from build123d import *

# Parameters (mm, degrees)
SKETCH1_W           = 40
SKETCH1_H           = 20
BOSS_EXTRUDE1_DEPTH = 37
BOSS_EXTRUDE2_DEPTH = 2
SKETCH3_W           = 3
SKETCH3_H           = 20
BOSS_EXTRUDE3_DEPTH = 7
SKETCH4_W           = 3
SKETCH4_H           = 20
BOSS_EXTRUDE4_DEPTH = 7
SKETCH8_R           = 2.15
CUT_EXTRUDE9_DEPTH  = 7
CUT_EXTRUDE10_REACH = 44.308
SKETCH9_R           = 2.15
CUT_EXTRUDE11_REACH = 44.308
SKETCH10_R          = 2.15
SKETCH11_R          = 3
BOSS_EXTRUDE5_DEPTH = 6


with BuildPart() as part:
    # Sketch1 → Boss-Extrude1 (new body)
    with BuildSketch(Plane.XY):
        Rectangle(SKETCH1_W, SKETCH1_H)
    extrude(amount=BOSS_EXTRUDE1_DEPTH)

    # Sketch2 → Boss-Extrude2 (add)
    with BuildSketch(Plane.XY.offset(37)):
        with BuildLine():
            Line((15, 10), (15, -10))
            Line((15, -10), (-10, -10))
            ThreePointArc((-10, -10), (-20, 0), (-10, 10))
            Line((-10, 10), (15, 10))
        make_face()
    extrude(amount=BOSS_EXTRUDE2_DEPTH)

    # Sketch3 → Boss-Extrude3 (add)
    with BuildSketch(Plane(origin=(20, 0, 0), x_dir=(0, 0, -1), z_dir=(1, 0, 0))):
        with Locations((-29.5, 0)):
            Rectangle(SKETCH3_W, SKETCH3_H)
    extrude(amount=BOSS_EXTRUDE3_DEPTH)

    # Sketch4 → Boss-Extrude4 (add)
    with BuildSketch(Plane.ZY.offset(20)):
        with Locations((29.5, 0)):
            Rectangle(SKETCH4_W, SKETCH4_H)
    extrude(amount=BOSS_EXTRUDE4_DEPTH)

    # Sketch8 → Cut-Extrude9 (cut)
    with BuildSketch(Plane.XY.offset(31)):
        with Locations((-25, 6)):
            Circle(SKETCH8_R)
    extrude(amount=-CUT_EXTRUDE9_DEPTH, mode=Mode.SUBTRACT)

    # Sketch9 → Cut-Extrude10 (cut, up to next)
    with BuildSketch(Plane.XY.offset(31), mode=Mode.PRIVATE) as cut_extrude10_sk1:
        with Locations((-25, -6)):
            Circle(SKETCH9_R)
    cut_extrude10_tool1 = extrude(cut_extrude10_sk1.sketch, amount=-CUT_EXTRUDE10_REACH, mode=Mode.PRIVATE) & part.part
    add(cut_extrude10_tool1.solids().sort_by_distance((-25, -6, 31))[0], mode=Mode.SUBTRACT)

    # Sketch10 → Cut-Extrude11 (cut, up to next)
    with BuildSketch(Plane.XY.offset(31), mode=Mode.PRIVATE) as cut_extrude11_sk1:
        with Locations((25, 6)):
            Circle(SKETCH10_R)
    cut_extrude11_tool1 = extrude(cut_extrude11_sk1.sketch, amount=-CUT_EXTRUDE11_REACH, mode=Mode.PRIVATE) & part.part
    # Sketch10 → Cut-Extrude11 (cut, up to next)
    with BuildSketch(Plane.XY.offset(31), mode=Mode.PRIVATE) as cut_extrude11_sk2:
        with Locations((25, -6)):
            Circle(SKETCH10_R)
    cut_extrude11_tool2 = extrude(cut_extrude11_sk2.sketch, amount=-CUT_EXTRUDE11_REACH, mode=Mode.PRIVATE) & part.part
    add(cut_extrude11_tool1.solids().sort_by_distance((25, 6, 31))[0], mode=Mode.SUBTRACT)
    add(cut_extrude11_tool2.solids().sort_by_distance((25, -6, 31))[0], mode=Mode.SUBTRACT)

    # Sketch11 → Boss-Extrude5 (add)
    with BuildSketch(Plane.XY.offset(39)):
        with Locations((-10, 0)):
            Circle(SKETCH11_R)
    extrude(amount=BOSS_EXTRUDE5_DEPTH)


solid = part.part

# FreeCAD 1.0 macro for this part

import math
import FreeCAD as App
import Part
import Sketcher

doc = App.newDocument("Part")
body = doc.addObject("PartDesign::Body", "Body")

# Sketch on XY plane
sketch1 = doc.addObject("Sketcher::SketchObject", "Sketch")
body.addObject(sketch1)
sketch1.AttachmentSupport = (doc.XY_Plane, [""])
sketch1.MapMode = "FlatFace"
sketch1.addGeometry(Part.LineSegment(App.Vector(-20, 10, 0), App.Vector(-20, -10, 0)), False)
sketch1.addGeometry(Part.LineSegment(App.Vector(-20, -10, 0), App.Vector(20, -10, 0)), False)
sketch1.addGeometry(Part.LineSegment(App.Vector(20, -10, 0), App.Vector(20, 10, 0)), False)
sketch1.addGeometry(Part.LineSegment(App.Vector(20, 10, 0), App.Vector(-20, 10, 0)), False)
sketch1.addConstraint(Sketcher.Constraint("Coincident", 0, 2, 1, 1))
sketch1.addConstraint(Sketcher.Constraint("Coincident", 1, 2, 2, 1))
sketch1.addConstraint(Sketcher.Constraint("Coincident", 2, 2, 3, 1))
sketch1.addConstraint(Sketcher.Constraint("Coincident", 3, 2, 0, 1))
sketch1.addConstraint(Sketcher.Constraint("Vertical", 0))
sketch1.addConstraint(Sketcher.Constraint("Horizontal", 1))
sketch1.addConstraint(Sketcher.Constraint("Vertical", 2))
sketch1.addConstraint(Sketcher.Constraint("Horizontal", 3))
sketch1.addConstraint(Sketcher.Constraint("Symmetric", 0, 2, 2, 2, -1, 1))
sketch1.addConstraint(Sketcher.Constraint("DistanceX", 1, 1, 1, 2, 40.0))
sketch1.addConstraint(Sketcher.Constraint("DistanceY", 0, 2, 0, 1, 20.0))
pad1 = doc.addObject("PartDesign::Pad", "Pad")
body.addObject(pad1)
pad1.Profile = sketch1
pad1.Length = 37

# Sketch on XY plane
sketch2 = doc.addObject("Sketcher::SketchObject", "Sketch001")
body.addObject(sketch2)
sketch2.AttachmentSupport = (doc.XY_Plane, [""])
sketch2.MapMode = "FlatFace"
sketch2.AttachmentOffset = App.Placement(App.Vector(0, 0, 37), App.Rotation())
sketch2.addGeometry(Part.LineSegment(App.Vector(15, -10, 0), App.Vector(15, 10, 0)), False)
sketch2.addGeometry(Part.LineSegment(App.Vector(15, 10, 0), App.Vector(-10, 10, 0)), False)
sketch2.addGeometry(Part.ArcOfCircle(Part.Circle(App.Vector(-10, 0, 0), App.Vector(0, 0, 1), 10), math.radians(90), math.radians(270)), False)
sketch2.addGeometry(Part.LineSegment(App.Vector(-10, -10, 0), App.Vector(15, -10, 0)), False)
sketch2.addConstraint(Sketcher.Constraint("Coincident", 0, 2, 1, 1))
sketch2.addConstraint(Sketcher.Constraint("Tangent", 1, 2, 2, 1))
sketch2.addConstraint(Sketcher.Constraint("Tangent", 2, 2, 3, 1))
sketch2.addConstraint(Sketcher.Constraint("Coincident", 3, 2, 0, 1))
sketch2.addConstraint(Sketcher.Constraint("Vertical", 0))
sketch2.addConstraint(Sketcher.Constraint("Horizontal", 1))
sketch2.addConstraint(Sketcher.Constraint("Horizontal", 3))
sketch2.addConstraint(Sketcher.Constraint("PointOnObject", 2, 3, -1))
sketch2.addConstraint(Sketcher.Constraint("Radius", 2, 10.0))
sketch2.addConstraint(Sketcher.Constraint("DistanceX", 1, 2, 1, 1, 25.0))
sketch2.addConstraint(Sketcher.Constraint("DistanceX", 2, 3, -1, 1, 10.0))
pad2 = doc.addObject("PartDesign::Pad", "Pad001")
body.addObject(pad2)
pad2.Profile = sketch2
pad2.Length = 2

# Sketch on YZ plane
sketch3 = doc.addObject("Sketcher::SketchObject", "Sketch002")
body.addObject(sketch3)
sketch3.AttachmentSupport = (doc.YZ_Plane, [""])
sketch3.MapMode = "FlatFace"
sketch3.AttachmentOffset = App.Placement(App.Vector(0, 0, 20), App.Rotation())
sketch3.addGeometry(Part.LineSegment(App.Vector(10, 31, 0), App.Vector(-10, 31, 0)), False)
sketch3.addGeometry(Part.LineSegment(App.Vector(-10, 31, 0), App.Vector(-10, 28, 0)), False)
sketch3.addGeometry(Part.LineSegment(App.Vector(-10, 28, 0), App.Vector(10, 28, 0)), False)
sketch3.addGeometry(Part.LineSegment(App.Vector(10, 28, 0), App.Vector(10, 31, 0)), False)
sketch3.addConstraint(Sketcher.Constraint("Coincident", 0, 2, 1, 1))
sketch3.addConstraint(Sketcher.Constraint("Coincident", 1, 2, 2, 1))
sketch3.addConstraint(Sketcher.Constraint("Coincident", 2, 2, 3, 1))
sketch3.addConstraint(Sketcher.Constraint("Coincident", 3, 2, 0, 1))
sketch3.addConstraint(Sketcher.Constraint("Horizontal", 0))
sketch3.addConstraint(Sketcher.Constraint("Vertical", 1))
sketch3.addConstraint(Sketcher.Constraint("Horizontal", 2))
sketch3.addConstraint(Sketcher.Constraint("Vertical", 3))
sketch3.addConstraint(Sketcher.Constraint("DistanceX", 0, 2, 0, 1, 20.0))
sketch3.addConstraint(Sketcher.Constraint("DistanceY", 1, 2, 1, 1, 3.0))
sketch3.addConstraint(Sketcher.Constraint("DistanceX", 0, 2, -1, 1, 10.0))
sketch3.addConstraint(Sketcher.Constraint("DistanceY", -1, 1, 0, 2, 31.0))
pad3 = doc.addObject("PartDesign::Pad", "Pad002")
body.addObject(pad3)
pad3.Profile = sketch3
pad3.Length = 7

# Sketch on YZ plane
sketch4 = doc.addObject("Sketcher::SketchObject", "Sketch003")
body.addObject(sketch4)
sketch4.AttachmentSupport = (doc.YZ_Plane, [""])
sketch4.MapMode = "FlatFace"
sketch4.AttachmentOffset = App.Placement(App.Vector(0, 0, -20), App.Rotation())
sketch4.addGeometry(Part.LineSegment(App.Vector(10, 28, 0), App.Vector(-10, 28, 0)), False)
sketch4.addGeometry(Part.LineSegment(App.Vector(-10, 28, 0), App.Vector(-10, 31, 0)), False)
sketch4.addGeometry(Part.LineSegment(App.Vector(-10, 31, 0), App.Vector(10, 31, 0)), False)
sketch4.addGeometry(Part.LineSegment(App.Vector(10, 31, 0), App.Vector(10, 28, 0)), False)
sketch4.addConstraint(Sketcher.Constraint("Coincident", 0, 2, 1, 1))
sketch4.addConstraint(Sketcher.Constraint("Coincident", 1, 2, 2, 1))
sketch4.addConstraint(Sketcher.Constraint("Coincident", 2, 2, 3, 1))
sketch4.addConstraint(Sketcher.Constraint("Coincident", 3, 2, 0, 1))
sketch4.addConstraint(Sketcher.Constraint("Horizontal", 0))
sketch4.addConstraint(Sketcher.Constraint("Vertical", 1))
sketch4.addConstraint(Sketcher.Constraint("Horizontal", 2))
sketch4.addConstraint(Sketcher.Constraint("Vertical", 3))
sketch4.addConstraint(Sketcher.Constraint("DistanceX", 0, 2, 0, 1, 20.0))
sketch4.addConstraint(Sketcher.Constraint("DistanceY", 1, 1, 1, 2, 3.0))
sketch4.addConstraint(Sketcher.Constraint("DistanceX", 0, 2, -1, 1, 10.0))
sketch4.addConstraint(Sketcher.Constraint("DistanceY", -1, 1, 0, 2, 28.0))
pad4 = doc.addObject("PartDesign::Pad", "Pad003")
body.addObject(pad4)
pad4.Profile = sketch4
pad4.Length = 7
pad4.Reversed = True

# Sketch on XY plane
sketch5 = doc.addObject("Sketcher::SketchObject", "Sketch004")
body.addObject(sketch5)
sketch5.AttachmentSupport = (doc.XY_Plane, [""])
sketch5.MapMode = "FlatFace"
sketch5.AttachmentOffset = App.Placement(App.Vector(0, 0, 31), App.Rotation())
sketch5.addGeometry(Part.Circle(App.Vector(-25, 6, 0), App.Vector(0, 0, 1), 2.1), False)
sketch5.addConstraint(Sketcher.Constraint("Diameter", 0, 4.3))
sketch5.addConstraint(Sketcher.Constraint("DistanceX", 0, 3, -1, 1, 25.0))
sketch5.addConstraint(Sketcher.Constraint("DistanceY", -1, 1, 0, 3, 6.0))
pocket1 = doc.addObject("PartDesign::Pocket", "Pocket")
body.addObject(pocket1)
pocket1.Profile = sketch5
pocket1.Length = 7

# Sketch on XY plane
sketch6 = doc.addObject("Sketcher::SketchObject", "Sketch005")
body.addObject(sketch6)
sketch6.AttachmentSupport = (doc.XY_Plane, [""])
sketch6.MapMode = "FlatFace"
sketch6.AttachmentOffset = App.Placement(App.Vector(0, 0, 31), App.Rotation())
sketch6.addGeometry(Part.Circle(App.Vector(-25, -6, 0), App.Vector(0, 0, 1), 2.1), False)
sketch6.addConstraint(Sketcher.Constraint("Diameter", 0, 4.3))
sketch6.addConstraint(Sketcher.Constraint("DistanceX", 0, 3, -1, 1, 25.0))
sketch6.addConstraint(Sketcher.Constraint("DistanceY", 0, 3, -1, 1, 6.0))
pocket2 = doc.addObject("PartDesign::Pocket", "Pocket001")
body.addObject(pocket2)
pocket2.Profile = sketch6
pocket2.Type = "UpToFirst"

# Sketch on XY plane
sketch7 = doc.addObject("Sketcher::SketchObject", "Sketch006")
body.addObject(sketch7)
sketch7.AttachmentSupport = (doc.XY_Plane, [""])
sketch7.MapMode = "FlatFace"
sketch7.AttachmentOffset = App.Placement(App.Vector(0, 0, 31), App.Rotation())
sketch7.addGeometry(Part.Circle(App.Vector(25, 6, 0), App.Vector(0, 0, 1), 2.1), False)
sketch7.addConstraint(Sketcher.Constraint("Diameter", 0, 4.3))
sketch7.addConstraint(Sketcher.Constraint("DistanceX", -1, 1, 0, 3, 25.0))
sketch7.addConstraint(Sketcher.Constraint("DistanceY", -1, 1, 0, 3, 6.0))
pocket3 = doc.addObject("PartDesign::Pocket", "Pocket002")
body.addObject(pocket3)
pocket3.Profile = sketch7
pocket3.Type = "UpToFirst"

# Sketch on XY plane
sketch8 = doc.addObject("Sketcher::SketchObject", "Sketch007")
body.addObject(sketch8)
sketch8.AttachmentSupport = (doc.XY_Plane, [""])
sketch8.MapMode = "FlatFace"
sketch8.AttachmentOffset = App.Placement(App.Vector(0, 0, 31), App.Rotation())
sketch8.addGeometry(Part.Circle(App.Vector(25, -6, 0), App.Vector(0, 0, 1), 2.1), False)
sketch8.addConstraint(Sketcher.Constraint("Diameter", 0, 4.3))
sketch8.addConstraint(Sketcher.Constraint("DistanceX", -1, 1, 0, 3, 25.0))
sketch8.addConstraint(Sketcher.Constraint("DistanceY", 0, 3, -1, 1, 6.0))
pocket4 = doc.addObject("PartDesign::Pocket", "Pocket003")
body.addObject(pocket4)
pocket4.Profile = sketch8
pocket4.Type = "UpToFirst"

# Sketch on XY plane
sketch9 = doc.addObject("Sketcher::SketchObject", "Sketch008")
body.addObject(sketch9)
sketch9.AttachmentSupport = (doc.XY_Plane, [""])
sketch9.MapMode = "FlatFace"
sketch9.AttachmentOffset = App.Placement(App.Vector(0, 0, 39), App.Rotation())
sketch9.addGeometry(Part.Circle(App.Vector(-10, 0, 0), App.Vector(0, 0, 1), 3), False)
sketch9.addConstraint(Sketcher.Constraint("PointOnObject", 0, 3, -1))
sketch9.addConstraint(Sketcher.Constraint("Diameter", 0, 6.0))
sketch9.addConstraint(Sketcher.Constraint("DistanceX", 0, 3, -1, 1, 10.0))
pad5 = doc.addObject("PartDesign::Pad", "Pad004")
body.addObject(pad5)
pad5.Profile = sketch9
pad5.Length = 6

doc.recompute()
